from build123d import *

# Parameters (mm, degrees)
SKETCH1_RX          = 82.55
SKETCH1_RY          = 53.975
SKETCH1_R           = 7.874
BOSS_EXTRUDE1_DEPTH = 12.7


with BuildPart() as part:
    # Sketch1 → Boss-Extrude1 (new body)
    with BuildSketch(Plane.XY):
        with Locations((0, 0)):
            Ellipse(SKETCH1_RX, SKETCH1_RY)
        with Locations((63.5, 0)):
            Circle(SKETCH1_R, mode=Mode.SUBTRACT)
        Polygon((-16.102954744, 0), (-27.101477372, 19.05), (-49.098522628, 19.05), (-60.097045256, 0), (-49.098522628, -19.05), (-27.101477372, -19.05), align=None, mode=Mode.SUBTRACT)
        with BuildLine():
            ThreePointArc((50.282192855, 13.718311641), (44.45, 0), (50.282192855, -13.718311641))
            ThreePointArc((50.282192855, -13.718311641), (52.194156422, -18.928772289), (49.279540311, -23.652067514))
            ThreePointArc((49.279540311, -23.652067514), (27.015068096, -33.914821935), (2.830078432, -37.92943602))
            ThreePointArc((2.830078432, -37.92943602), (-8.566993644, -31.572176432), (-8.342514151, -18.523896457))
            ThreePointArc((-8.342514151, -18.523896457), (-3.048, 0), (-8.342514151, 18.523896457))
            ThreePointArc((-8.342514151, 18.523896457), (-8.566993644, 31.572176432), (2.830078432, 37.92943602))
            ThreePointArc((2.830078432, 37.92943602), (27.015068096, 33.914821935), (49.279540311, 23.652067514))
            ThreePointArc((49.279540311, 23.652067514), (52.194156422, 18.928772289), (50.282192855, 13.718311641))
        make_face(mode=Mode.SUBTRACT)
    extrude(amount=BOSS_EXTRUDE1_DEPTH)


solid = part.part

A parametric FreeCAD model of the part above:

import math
import FreeCAD as App
import Part
import Sketcher
Q = App.Units.Quantity

doc = App.newDocument("Part")
body = doc.addObject("PartDesign::Body", "Body")

# Sketch on XY plane
sketch1 = body.newObject("Sketcher::SketchObject", "Sketch")
sketch1.AttachmentSupport = (doc.getObject("XY_Plane"), [""])
sketch1.MapMode = "FlatFace"
sketch1.addGeometry(Part.Ellipse(App.Vector(82.55, 0, 0), App.Vector(0, 53.975, 0), App.Vector(0, 0, 0)), False)
sketch1.addGeometry(Part.LineSegment(App.Vector(-27.101477, 19.05, 0), App.Vector(-16.102955, 0, 0)), False)
sketch1.addGeometry(Part.LineSegment(App.Vector(-16.102955, 0, 0), App.Vector(-27.101477, -19.05, 0)), False)
sketch1.addGeometry(Part.LineSegment(App.Vector(-27.101477, -19.05, 0), App.Vector(-49.098523, -19.05, 0)), False)
sketch1.addGeometry(Part.LineSegment(App.Vector(-49.098523, -19.05, 0), App.Vector(-60.097045, 0, 0)), False)
sketch1.addGeometry(Part.LineSegment(App.Vector(-60.097045, 0, 0), App.Vector(-49.098523, 19.05, 0)), False)
sketch1.addGeometry(Part.LineSegment(App.Vector(-49.098523, 19.05, 0), App.Vector(-27.101477, 19.05, 0)), False)
sketch1.addGeometry(Part.ArcOfCircle(Part.Circle(App.Vector(45.876257, 18.291082, 0), App.Vector(0, 0, 1), 6.35), math.radians(-46.0645), math.radians(57.591632)), False)
sketch1.addGeometry(Part.ArcOfCircle(Part.Circle(App.Vector(63.5, 0, 0), App.Vector(0, 0, 1), 19.05), math.radians(133.9355), math.radians(226.0645)), False)
sketch1.addGeometry(Part.ArcOfCircle(Part.Circle(App.Vector(45.876257, -18.291082, 0), App.Vector(0, 0, 1), 6.35), math.radians(-57.591632), math.radians(46.0645)), False)
sketch1.addGeometry(Part.ArcOfCircle(Part.Circle(App.Vector(0, 53.975, 0), App.Vector(0, 0, 1), 91.948), math.radians(-88.236208), math.radians(-57.591632)), False)
sketch1.addGeometry(Part.ArcOfCircle(Part.Circle(App.Vector(2.439184, -25.235453, 0), App.Vector(0, 0, 1), 12.7), math.radians(148.097928), math.radians(271.763792)), False)
sketch1.addGeometry(Part.ArcOfCircle(Part.Circle(App.Vector(-38.1, 0, 0), App.Vector(0, 0, 1), 35.052), math.radians(-31.902072), math.radians(31.902072)), False)
sketch1.addGeometry(Part.ArcOfCircle(Part.Circle(App.Vector(2.439184, 25.235453, 0), App.Vector(0, 0, 1), 12.7), math.radians(88.236208), math.radians(211.902072)), False)
sketch1.addGeometry(Part.ArcOfCircle(Part.Circle(App.Vector(0, -53.975, 0), App.Vector(0, 0, 1), 91.948), math.radians(57.591632), math.radians(88.236208)), False)
sketch1.addGeometry(Part.Circle(App.Vector(63.5, 0, 0), App.Vector(0, 0, 1), 7.874), False)
sketch1.addConstraint(Sketcher.Constraint("Block", 0))
sketch1.addConstraint(Sketcher.Constraint("Coincident", 1, 2, 2, 1))
sketch1.addConstraint(Sketcher.Constraint("Coincident", 2, 2, 3, 1))
sketch1.addConstraint(Sketcher.Constraint("Coincident", 3, 2, 4, 1))
sketch1.addConstraint(Sketcher.Constraint("Coincident", 4, 2, 5, 1))
sketch1.addConstraint(Sketcher.Constraint("Coincident", 5, 2, 6, 1))
sketch1.addConstraint(Sketcher.Constraint("Coincident", 6, 2, 1, 1))
sketch1.addConstraint(Sketcher.Constraint("Tangent", 7, 1, 8, 1))
sketch1.addConstraint(Sketcher.Constraint("Tangent", 8, 2, 9, 2))
sketch1.addConstraint(Sketcher.Constraint("Tangent", 9, 1, 10, 2))
sketch1.addConstraint(Sketcher.Constraint("Tangent", 10, 1, 11, 2))
sketch1.addConstraint(Sketcher.Constraint("Tangent", 11, 1, 12, 1))
sketch1.addConstraint(Sketcher.Constraint("Tangent", 12, 2, 13, 2))
sketch1.addConstraint(Sketcher.Constraint("Tangent", 13, 1, 14, 2))
sketch1.addConstraint(Sketcher.Constraint("Tangent", 14, 1, 7, 2))
sketch1.addConstraint(Sketcher.Constraint("Horizontal", 3))
sketch1.addConstraint(Sketcher.Constraint("Horizontal", 6))
sketch1.addConstraint(Sketcher.Constraint("Coincident", 15, 3, 8, 3))
sketch1.addConstraint(Sketcher.Constraint("Equal", 7, 9))
sketch1.addConstraint(Sketcher.Constraint("Equal", 11, 13))
sketch1.addConstraint(Sketcher.Constraint("Equal", 10, 14))
sketch1.addConstraint(Sketcher.Constraint("Symmetric", 10, 3, 14, 3, -1, 1))
sketch1.addConstraint(Sketcher.Constraint("Symmetric", 7, 3, 9, 3, -1))
sketch1.addConstraint(Sketcher.Constraint("Symmetric", 3, 2, 5, 2, -1))
sketch1.addConstraint(Sketcher.Constraint("PointOnObject", 12, 3, -1))
sketch1.addConstraint(Sketcher.Constraint("PointOnObject", 1, 2, -1))
sketch1.addConstraint(Sketcher.Constraint("PointOnObject", 4, 2, -1))
sketch1.addConstraint(Sketcher.Constraint("Parallel", 1, 4))
sketch1.addConstraint(Sketcher.Constraint("Parallel", 2, 5))
sketch1.addConstraint(Sketcher.Constraint("Radius", 11, Q("0.5 in")))
sketch1.addConstraint(Sketcher.Constraint("Diameter", 15, Q("0.62 in")))
sketch1.addConstraint(Sketcher.Constraint("Radius", 7, Q("0.25 in")))
sketch1.addConstraint(Sketcher.Constraint("Radius", 8, Q("0.75 in")))
sketch1.addConstraint(Sketcher.Constraint("Radius", 10, Q("3.62 in")))
sketch1.addConstraint(Sketcher.Constraint("Radius", 12, Q("1.38 in")))
sketch1.addConstraint(Sketcher.Constraint("Angle", 1, Q("-60 deg")))
sketch1.addConstraint(Sketcher.Constraint("DistanceX", 12, 3, 8, 3, Q("4 in")))
sketch1.addConstraint(Sketcher.Constraint("DistanceX", -1, 1, 8, 3, Q("2.5 in")))
sketch1.addConstraint(Sketcher.Constraint("DistanceY", 3, 2, 5, 2, Q("1.5 in")))
sketch1.addConstraint(Sketcher.Constraint("DistanceY", -1, 1, 10, 3, Q("2.125 in")))
sketch1.addConstraint(Sketcher.Constraint("DistanceX", 3, 2, 3, 1, Q("21.997045 mm")))
sketch1.addConstraint(Sketcher.Constraint("DistanceX", 1, 2, 11, 3, Q("18.542138 mm")))
pad1 = body.newObject("PartDesign::Pad", "Pad")
pad1.Profile = sketch1
pad1.Length = Q("0.5 in")

doc.recompute()
